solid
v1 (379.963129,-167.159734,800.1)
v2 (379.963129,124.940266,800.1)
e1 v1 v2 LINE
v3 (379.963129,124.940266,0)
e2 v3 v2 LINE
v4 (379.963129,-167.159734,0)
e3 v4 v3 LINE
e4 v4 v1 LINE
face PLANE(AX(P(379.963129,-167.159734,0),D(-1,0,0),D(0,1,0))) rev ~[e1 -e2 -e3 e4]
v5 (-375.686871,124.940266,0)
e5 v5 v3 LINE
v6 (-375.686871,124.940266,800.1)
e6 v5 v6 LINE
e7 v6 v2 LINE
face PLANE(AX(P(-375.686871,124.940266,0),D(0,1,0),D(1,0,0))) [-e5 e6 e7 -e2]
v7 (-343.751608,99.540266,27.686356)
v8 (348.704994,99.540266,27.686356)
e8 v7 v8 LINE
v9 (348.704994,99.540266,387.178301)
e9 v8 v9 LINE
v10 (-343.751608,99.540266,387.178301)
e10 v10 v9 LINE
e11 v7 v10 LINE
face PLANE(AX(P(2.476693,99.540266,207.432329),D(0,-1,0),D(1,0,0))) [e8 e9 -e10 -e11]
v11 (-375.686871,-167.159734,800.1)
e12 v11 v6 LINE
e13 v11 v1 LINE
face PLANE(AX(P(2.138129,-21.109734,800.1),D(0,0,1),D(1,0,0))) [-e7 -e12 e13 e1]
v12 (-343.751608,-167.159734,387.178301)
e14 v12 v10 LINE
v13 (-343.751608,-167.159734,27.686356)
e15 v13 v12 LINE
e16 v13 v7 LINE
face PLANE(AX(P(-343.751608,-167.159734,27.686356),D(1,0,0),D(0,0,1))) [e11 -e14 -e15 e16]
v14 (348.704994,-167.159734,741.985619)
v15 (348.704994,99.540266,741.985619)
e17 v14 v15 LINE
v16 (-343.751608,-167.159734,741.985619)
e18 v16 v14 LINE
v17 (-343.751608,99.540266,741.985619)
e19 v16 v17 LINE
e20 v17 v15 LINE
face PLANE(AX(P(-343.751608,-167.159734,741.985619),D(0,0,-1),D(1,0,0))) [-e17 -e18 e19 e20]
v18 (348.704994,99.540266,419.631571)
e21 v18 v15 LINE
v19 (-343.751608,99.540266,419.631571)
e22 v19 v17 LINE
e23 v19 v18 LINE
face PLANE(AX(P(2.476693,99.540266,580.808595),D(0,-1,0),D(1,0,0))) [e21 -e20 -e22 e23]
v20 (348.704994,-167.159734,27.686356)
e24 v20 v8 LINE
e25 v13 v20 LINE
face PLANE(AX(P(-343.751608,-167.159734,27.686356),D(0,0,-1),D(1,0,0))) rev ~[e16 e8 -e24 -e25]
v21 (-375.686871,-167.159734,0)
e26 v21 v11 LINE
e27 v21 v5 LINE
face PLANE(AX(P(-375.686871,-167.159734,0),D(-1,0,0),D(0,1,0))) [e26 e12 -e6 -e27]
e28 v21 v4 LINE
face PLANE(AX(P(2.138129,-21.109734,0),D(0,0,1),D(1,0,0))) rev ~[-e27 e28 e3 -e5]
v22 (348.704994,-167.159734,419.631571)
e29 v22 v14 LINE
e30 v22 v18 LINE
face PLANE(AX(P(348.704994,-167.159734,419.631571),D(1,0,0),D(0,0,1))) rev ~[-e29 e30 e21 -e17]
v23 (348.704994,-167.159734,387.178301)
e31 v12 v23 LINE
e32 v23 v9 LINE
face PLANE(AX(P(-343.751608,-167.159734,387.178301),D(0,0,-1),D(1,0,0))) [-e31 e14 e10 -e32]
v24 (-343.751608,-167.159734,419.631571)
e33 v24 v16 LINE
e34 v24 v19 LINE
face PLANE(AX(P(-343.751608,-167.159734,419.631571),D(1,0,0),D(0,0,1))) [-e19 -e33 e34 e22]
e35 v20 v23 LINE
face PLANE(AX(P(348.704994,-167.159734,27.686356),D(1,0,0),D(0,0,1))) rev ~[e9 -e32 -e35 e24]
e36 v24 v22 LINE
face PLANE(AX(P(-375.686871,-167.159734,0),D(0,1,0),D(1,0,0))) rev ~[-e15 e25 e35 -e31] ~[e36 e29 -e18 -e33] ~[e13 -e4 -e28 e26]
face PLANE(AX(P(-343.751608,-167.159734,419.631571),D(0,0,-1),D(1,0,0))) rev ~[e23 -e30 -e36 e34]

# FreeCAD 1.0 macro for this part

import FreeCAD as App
import Part
import Sketcher
from FreeCAD import Vector
Q = App.Units.Quantity

doc = App.newDocument("Part")
body = doc.addObject("PartDesign::Body", "Body")

sketch1 = doc.addObject("Sketcher::SketchObject", "Sketch")
body.addObject(sketch1)
sketch1.AttachmentSupport = (doc.XY_Plane, [""])
sketch1.MapMode = "FlatFace"
sketch1.addGeometry(Part.LineSegment(Vector(-376, 125, 0), Vector(-376, -167, 0)), False)
sketch1.addGeometry(Part.LineSegment(Vector(-376, -167, 0), Vector(380, -167, 0)), False)
sketch1.addGeometry(Part.LineSegment(Vector(380, -167, 0), Vector(380, 125, 0)), False)
sketch1.addGeometry(Part.LineSegment(Vector(380, 125, 0), Vector(-376, 125, 0)), False)
sketch1.addConstraint(Sketcher.Constraint("Coincident", 0, 2, 1, 1))
sketch1.addConstraint(Sketcher.Constraint("Coincident", 1, 2, 2, 1))
sketch1.addConstraint(Sketcher.Constraint("Coincident", 2, 2, 3, 1))
sketch1.addConstraint(Sketcher.Constraint("Coincident", 3, 2, 0, 1))
sketch1.addConstraint(Sketcher.Constraint("Vertical", 0))
sketch1.addConstraint(Sketcher.Constraint("Horizontal", 1))
sketch1.addConstraint(Sketcher.Constraint("Vertical", 2))
sketch1.addConstraint(Sketcher.Constraint("Horizontal", 3))
sketch1.addConstraint(Sketcher.Constraint("DistanceY", 0, 2, 0, 1, Q("11.5 in")))
sketch1.addConstraint(Sketcher.Constraint("DistanceX", 1, 1, 1, 2, Q("29.75 in")))
sketch1.addConstraint(Sketcher.Constraint("DistanceX", 0, 2, -1, 1, Q("375.686871 mm")))
sketch1.addConstraint(Sketcher.Constraint("DistanceY", 0, 2, -1, 1, Q("167.159734 mm")))
pad1 = doc.addObject("PartDesign::Pad", "Pad")
body.addObject(pad1)
pad1.Profile = sketch1
pad1.Length = Q("31.5 in")

sketch2 = doc.addObject("Sketcher::SketchObject", "Sketch001")
body.addObject(sketch2)
sketch2.AttachmentSupport = (doc.XZ_Plane, [""])
sketch2.MapMode = "FlatFace"
sketch2.AttachmentOffset = App.Placement(Vector(0, 0, 167.159734), App.Rotation())
sketch2.addGeometry(Part.LineSegment(Vector(-344, 387, 0), Vector(-344, 28, 0)), False)
sketch2.addGeometry(Part.LineSegment(Vector(-344, 28, 0), Vector(349, 28, 0)), False)
sketch2.addGeometry(Part.LineSegment(Vector(349, 28, 0), Vector(349, 387, 0)), False)
sketch2.addGeometry(Part.LineSegment(Vector(349, 387, 0), Vector(-344, 387, 0)), False)
sketch2.addConstraint(Sketcher.Constraint("Coincident", 0, 2, 1, 1))
sketch2.addConstraint(Sketcher.Constraint("Coincident", 1, 2, 2, 1))
sketch2.addConstraint(Sketcher.Constraint("Coincident", 2, 2, 3, 1))
sketch2.addConstraint(Sketcher.Constraint("Coincident", 3, 2, 0, 1))
sketch2.addConstraint(Sketcher.Constraint("Vertical", 0))
sketch2.addConstraint(Sketcher.Constraint("Horizontal", 1))
sketch2.addConstraint(Sketcher.Constraint("Vertical", 2))
sketch2.addConstraint(Sketcher.Constraint("Horizontal", 3))
sketch2.addConstraint(Sketcher.Constraint("DistanceY", -1, 1, 2, 2, Q("387.178301 mm")))
sketch2.addConstraint(Sketcher.Constraint("DistanceX", 1, 1, 1, 2, Q("692.456603 mm")))
sketch2.addConstraint(Sketcher.Constraint("DistanceY", 0, 2, 0, 1, Q("359.491945 mm")))
sketch2.addConstraint(Sketcher.Constraint("DistanceX", 0, 2, -1, 1, Q("343.751608 mm")))
pocket1 = doc.addObject("PartDesign::Pocket", "Pocket")
body.addObject(pocket1)
pocket1.Profile = sketch2
pocket1.Length = Q("10.5 in")

sketch3 = doc.addObject("Sketcher::SketchObject", "Sketch002")
body.addObject(sketch3)
sketch3.AttachmentSupport = (doc.XZ_Plane, [""])
sketch3.MapMode = "FlatFace"
sketch3.AttachmentOffset = App.Placement(Vector(0, 0, 167.159734), App.Rotation())
sketch3.addGeometry(Part.LineSegment(Vector(-344, 742, 0), Vector(-344, 420, 0)), False)
sketch3.addGeometry(Part.LineSegment(Vector(-344, 420, 0), Vector(349, 420, 0)), False)
sketch3.addGeometry(Part.LineSegment(Vector(349, 420, 0), Vector(349, 742, 0)), False)
sketch3.addGeometry(Part.LineSegment(Vector(349, 742, 0), Vector(-344, 742, 0)), False)
sketch3.addConstraint(Sketcher.Constraint("Coincident", 0, 2, 1, 1))
sketch3.addConstraint(Sketcher.Constraint("Coincident", 1, 2, 2, 1))
sketch3.addConstraint(Sketcher.Constraint("Coincident", 2, 2, 3, 1))
sketch3.addConstraint(Sketcher.Constraint("Coincident", 3, 2, 0, 1))
sketch3.addConstraint(Sketcher.Constraint("Vertical", 0))
sketch3.addConstraint(Sketcher.Constraint("Horizontal", 1))
sketch3.addConstraint(Sketcher.Constraint("Vertical", 2))
sketch3.addConstraint(Sketcher.Constraint("Horizontal", 3))
sketch3.addConstraint(Sketcher.Constraint("DistanceY", 0, 2, 0, 1, Q("322.354048 mm")))
sketch3.addConstraint(Sketcher.Constraint("DistanceX", 1, 1, 1, 2, Q("692.456603 mm")))
sketch3.addConstraint(Sketcher.Constraint("DistanceX", 0, 2, -1, 1, Q("343.751608 mm")))
sketch3.addConstraint(Sketcher.Constraint("DistanceY", -1, 1, 0, 2, Q("419.631571 mm")))
pocket2 = doc.addObject("PartDesign::Pocket", "Pocket001")
body.addObject(pocket2)
pocket2.Profile = sketch3
pocket2.Length = Q("10.5 in")

doc.recompute()
